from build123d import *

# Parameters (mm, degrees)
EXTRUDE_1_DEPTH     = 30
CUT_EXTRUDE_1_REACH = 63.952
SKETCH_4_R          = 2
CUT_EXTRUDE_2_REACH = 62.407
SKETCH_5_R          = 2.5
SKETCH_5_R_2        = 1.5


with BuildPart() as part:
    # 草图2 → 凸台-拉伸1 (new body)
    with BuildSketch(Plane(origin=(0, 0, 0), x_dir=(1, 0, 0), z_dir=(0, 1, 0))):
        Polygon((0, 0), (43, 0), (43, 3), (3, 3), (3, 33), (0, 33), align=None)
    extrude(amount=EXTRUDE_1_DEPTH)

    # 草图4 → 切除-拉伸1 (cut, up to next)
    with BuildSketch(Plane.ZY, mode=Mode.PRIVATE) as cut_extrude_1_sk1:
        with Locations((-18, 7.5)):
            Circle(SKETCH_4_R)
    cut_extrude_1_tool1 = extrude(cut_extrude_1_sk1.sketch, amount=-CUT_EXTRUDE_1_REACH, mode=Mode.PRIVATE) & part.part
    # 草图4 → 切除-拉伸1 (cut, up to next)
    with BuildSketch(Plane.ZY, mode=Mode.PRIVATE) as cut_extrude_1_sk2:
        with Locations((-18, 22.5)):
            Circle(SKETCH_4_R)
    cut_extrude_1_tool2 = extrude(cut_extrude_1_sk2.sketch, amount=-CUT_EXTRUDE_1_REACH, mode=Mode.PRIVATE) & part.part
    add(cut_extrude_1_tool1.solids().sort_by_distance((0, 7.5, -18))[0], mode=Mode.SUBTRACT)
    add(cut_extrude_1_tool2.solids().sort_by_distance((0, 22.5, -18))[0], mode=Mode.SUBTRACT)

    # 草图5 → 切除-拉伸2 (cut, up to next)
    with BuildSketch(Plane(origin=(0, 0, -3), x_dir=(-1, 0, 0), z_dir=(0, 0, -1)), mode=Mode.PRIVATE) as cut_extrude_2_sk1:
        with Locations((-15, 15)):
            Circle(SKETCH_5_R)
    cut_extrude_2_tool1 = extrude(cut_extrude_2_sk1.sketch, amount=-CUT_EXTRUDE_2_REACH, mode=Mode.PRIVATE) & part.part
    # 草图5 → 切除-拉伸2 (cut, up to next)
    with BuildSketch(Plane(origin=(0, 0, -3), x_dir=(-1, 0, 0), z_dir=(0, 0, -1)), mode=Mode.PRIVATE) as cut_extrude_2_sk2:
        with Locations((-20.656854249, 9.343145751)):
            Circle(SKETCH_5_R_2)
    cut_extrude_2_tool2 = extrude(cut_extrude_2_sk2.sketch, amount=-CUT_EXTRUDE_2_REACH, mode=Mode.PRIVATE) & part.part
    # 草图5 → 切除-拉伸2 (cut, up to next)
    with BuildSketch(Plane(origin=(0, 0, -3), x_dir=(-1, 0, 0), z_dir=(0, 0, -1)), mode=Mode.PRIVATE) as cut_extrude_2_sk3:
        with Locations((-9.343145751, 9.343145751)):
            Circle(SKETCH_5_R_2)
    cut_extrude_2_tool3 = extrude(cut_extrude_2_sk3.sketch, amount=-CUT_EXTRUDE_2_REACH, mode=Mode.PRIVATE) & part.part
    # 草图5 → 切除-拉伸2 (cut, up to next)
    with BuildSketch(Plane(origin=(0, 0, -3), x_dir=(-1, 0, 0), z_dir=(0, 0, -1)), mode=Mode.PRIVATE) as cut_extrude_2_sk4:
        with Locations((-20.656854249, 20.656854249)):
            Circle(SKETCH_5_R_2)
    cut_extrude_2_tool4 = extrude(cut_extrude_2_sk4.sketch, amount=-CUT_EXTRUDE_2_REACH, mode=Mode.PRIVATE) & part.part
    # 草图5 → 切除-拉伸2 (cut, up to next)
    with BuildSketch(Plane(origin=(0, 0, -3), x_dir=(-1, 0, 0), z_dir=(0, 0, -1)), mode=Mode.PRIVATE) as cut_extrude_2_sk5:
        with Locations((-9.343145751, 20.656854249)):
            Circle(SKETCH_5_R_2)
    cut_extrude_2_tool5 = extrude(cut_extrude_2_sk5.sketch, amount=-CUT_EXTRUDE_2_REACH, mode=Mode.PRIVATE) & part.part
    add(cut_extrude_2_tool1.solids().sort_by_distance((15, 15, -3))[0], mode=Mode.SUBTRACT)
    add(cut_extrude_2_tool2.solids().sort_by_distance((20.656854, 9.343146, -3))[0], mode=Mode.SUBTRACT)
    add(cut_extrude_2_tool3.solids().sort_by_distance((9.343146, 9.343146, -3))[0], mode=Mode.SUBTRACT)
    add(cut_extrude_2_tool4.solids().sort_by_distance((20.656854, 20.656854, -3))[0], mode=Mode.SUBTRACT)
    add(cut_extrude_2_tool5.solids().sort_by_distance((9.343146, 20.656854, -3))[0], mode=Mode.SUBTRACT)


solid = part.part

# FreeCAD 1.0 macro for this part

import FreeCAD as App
import Part
import Sketcher

doc = App.newDocument("Part")
body = doc.addObject("PartDesign::Body", "Body")

sketch1 = body.newObject("Sketcher::SketchObject", "Sketch")
sketch1.AttachmentSupport = (doc.getObject("XZ_Plane"), [""])
sketch1.MapMode = "FlatFace"
sketch1.addGeometry(Part.LineSegment(App.Vector(0, 0, 0), App.Vector(43, 0, 0)), False)
sketch1.addGeometry(Part.LineSegment(App.Vector(43, 0, 0), App.Vector(43, -3, 0)), False)
sketch1.addGeometry(Part.LineSegment(App.Vector(43, -3, 0), App.Vector(3, -3, 0)), False)
sketch1.addGeometry(Part.LineSegment(App.Vector(3, -3, 0), App.Vector(3, -33, 0)), False)
sketch1.addGeometry(Part.LineSegment(App.Vector(3, -33, 0), App.Vector(0, -33, 0)), False)
sketch1.addGeometry(Part.LineSegment(App.Vector(0, -33, 0), App.Vector(0, 0, 0)), False)
sketch1.addConstraint(Sketcher.Constraint("Coincident", 0, 2, 1, 1))
sketch1.addConstraint(Sketcher.Constraint("Coincident", 1, 2, 2, 1))
sketch1.addConstraint(Sketcher.Constraint("Coincident", 2, 2, 3, 1))
sketch1.addConstraint(Sketcher.Constraint("Coincident", 3, 2, 4, 1))
sketch1.addConstraint(Sketcher.Constraint("Coincident", 4, 2, 5, 1))
sketch1.addConstraint(Sketcher.Constraint("Coincident", 5, 2, 0, 1))
sketch1.addConstraint(Sketcher.Constraint("Horizontal", 0))
sketch1.addConstraint(Sketcher.Constraint("Vertical", 1))
sketch1.addConstraint(Sketcher.Constraint("Horizontal", 2))
sketch1.addConstraint(Sketcher.Constraint("Vertical", 3))
sketch1.addConstraint(Sketcher.Constraint("Horizontal", 4))
sketch1.addConstraint(Sketcher.Constraint("Vertical", 5))
sketch1.addConstraint(Sketcher.Constraint("Coincident", 5, 2, -1, 1))
sketch1.addConstraint(Sketcher.Constraint("Equal", 4, 1))
sketch1.addConstraint(Sketcher.Constraint("DistanceX", 0, 1, 0, 2, 43.0))
sketch1.addConstraint(Sketcher.Constraint("DistanceX", 2, 2, 2, 1, 40.0))
sketch1.addConstraint(Sketcher.Constraint("DistanceY", 3, 2, 3, 1, 30.0))
pad1 = body.newObject("PartDesign::Pad", "Pad")
pad1.Profile = sketch1
pad1.Length = 30
pad1.Reversed = True

sketch2 = body.newObject("Sketcher::SketchObject", "Sketch001")
sketch2.AttachmentSupport = (doc.getObject("YZ_Plane"), [""])
sketch2.MapMode = "FlatFace"
sketch2.addGeometry(Part.Circle(App.Vector(7.5, -18, 0), App.Vector(0, 0, 1), 2), False)
sketch2.addConstraint(Sketcher.Constraint("Diameter", 0, 4.0))
sketch2.addConstraint(Sketcher.Constraint("DistanceY", 0, 3, -1, 1, 18.0))
sketch2.addConstraint(Sketcher.Constraint("DistanceX", -1, 1, 0, 3, 7.5))
pocket1 = body.newObject("PartDesign::Pocket", "Pocket")
pocket1.Profile = sketch2
pocket1.Type = "UpToFirst"
pocket1.Reversed = True

sketch3 = body.newObject("Sketcher::SketchObject", "Sketch002")
sketch3.AttachmentSupport = (doc.getObject("YZ_Plane"), [""])
sketch3.MapMode = "FlatFace"
sketch3.addGeometry(Part.Circle(App.Vector(22.5, -18, 0), App.Vector(0, 0, 1), 2), False)
sketch3.addConstraint(Sketcher.Constraint("Diameter", 0, 4.0))
sketch3.addConstraint(Sketcher.Constraint("DistanceY", 0, 3, -1, 1, 18.0))
sketch3.addConstraint(Sketcher.Constraint("DistanceX", -1, 1, 0, 3, 22.5))
pocket2 = body.newObject("PartDesign::Pocket", "Pocket001")
pocket2.Profile = sketch3
pocket2.Type = "UpToFirst"
pocket2.Reversed = True

sketch4 = body.newObject("Sketcher::SketchObject", "Sketch003")
sketch4.AttachmentSupport = (doc.getObject("XY_Plane"), [""])
sketch4.MapMode = "FlatFace"
sketch4.AttachmentOffset = App.Placement(App.Vector(0, 0, -3), App.Rotation())
sketch4.addGeometry(Part.Circle(App.Vector(15, 15, 0), App.Vector(0, 0, 1), 2.5), False)
sketch4.addConstraint(Sketcher.Constraint("Diameter", 0, 5.0))
sketch4.addConstraint(Sketcher.Constraint("DistanceX", -1, 1, 0, 3, 15.0))
sketch4.addConstraint(Sketcher.Constraint("DistanceY", -1, 1, 0, 3, 15.0))
pocket3 = body.newObject("PartDesign::Pocket", "Pocket002")
pocket3.Profile = sketch4
pocket3.Type = "UpToFirst"
pocket3.Reversed = True

sketch5 = body.newObject("Sketcher::SketchObject", "Sketch004")
sketch5.AttachmentSupport = (doc.getObject("XY_Plane"), [""])
sketch5.MapMode = "FlatFace"
sketch5.AttachmentOffset = App.Placement(App.Vector(0, 0, -3), App.Rotation())
sketch5.addGeometry(Part.Circle(App.Vector(20.7, 9.3, 0), App.Vector(0, 0, 1), 1.5), False)
sketch5.addConstraint(Sketcher.Constraint("Diameter", 0, 3.0))
sketch5.addConstraint(Sketcher.Constraint("DistanceX", -1, 1, 0, 3, 20.656854))
sketch5.addConstraint(Sketcher.Constraint("DistanceY", -1, 1, 0, 3, 9.343146))
pocket4 = body.newObject("PartDesign::Pocket", "Pocket003")
pocket4.Profile = sketch5
pocket4.Type = "UpToFirst"
pocket4.Reversed = True

sketch6 = body.newObject("Sketcher::SketchObject", "Sketch005")
sketch6.AttachmentSupport = (doc.getObject("XY_Plane"), [""])
sketch6.MapMode = "FlatFace"
sketch6.AttachmentOffset = App.Placement(App.Vector(0, 0, -3), App.Rotation())
sketch6.addGeometry(Part.Circle(App.Vector(9.3, 9.3, 0), App.Vector(0, 0, 1), 1.5), False)
sketch6.addConstraint(Sketcher.Constraint("Diameter", 0, 3.0))
sketch6.addConstraint(Sketcher.Constraint("DistanceX", -1, 1, 0, 3, 9.343146))
sketch6.addConstraint(Sketcher.Constraint("DistanceY", -1, 1, 0, 3, 9.343146))
pocket5 = body.newObject("PartDesign::Pocket", "Pocket004")
pocket5.Profile = sketch6
pocket5.Type = "UpToFirst"
pocket5.Reversed = True

sketch7 = body.newObject("Sketcher::SketchObject", "Sketch006")
sketch7.AttachmentSupport = (doc.getObject("XY_Plane"), [""])
sketch7.MapMode = "FlatFace"
sketch7.AttachmentOffset = App.Placement(App.Vector(0, 0, -3), App.Rotation())
sketch7.addGeometry(Part.Circle(App.Vector(20.7, 20.7, 0), App.Vector(0, 0, 1), 1.5), False)
sketch7.addConstraint(Sketcher.Constraint("Diameter", 0, 3.0))
sketch7.addConstraint(Sketcher.Constraint("DistanceX", -1, 1, 0, 3, 20.656854))
sketch7.addConstraint(Sketcher.Constraint("DistanceY", -1, 1, 0, 3, 20.656854))
pocket6 = body.newObject("PartDesign::Pocket", "Pocket005")
pocket6.Profile = sketch7
pocket6.Type = "UpToFirst"
pocket6.Reversed = True

sketch8 = body.newObject("Sketcher::SketchObject", "Sketch007")
sketch8.AttachmentSupport = (doc.getObject("XY_Plane"), [""])
sketch8.MapMode = "FlatFace"
sketch8.AttachmentOffset = App.Placement(App.Vector(0, 0, -3), App.Rotation())
sketch8.addGeometry(Part.Circle(App.Vector(9.3, 20.7, 0), App.Vector(0, 0, 1), 1.5), False)
sketch8.addConstraint(Sketcher.Constraint("Diameter", 0, 3.0))
sketch8.addConstraint(Sketcher.Constraint("DistanceX", -1, 1, 0, 3, 9.343146))
sketch8.addConstraint(Sketcher.Constraint("DistanceY", -1, 1, 0, 3, 20.656854))
pocket7 = body.newObject("PartDesign::Pocket", "Pocket006")
pocket7.Profile = sketch8
pocket7.Type = "UpToFirst"
pocket7.Reversed = True

doc.recompute()
